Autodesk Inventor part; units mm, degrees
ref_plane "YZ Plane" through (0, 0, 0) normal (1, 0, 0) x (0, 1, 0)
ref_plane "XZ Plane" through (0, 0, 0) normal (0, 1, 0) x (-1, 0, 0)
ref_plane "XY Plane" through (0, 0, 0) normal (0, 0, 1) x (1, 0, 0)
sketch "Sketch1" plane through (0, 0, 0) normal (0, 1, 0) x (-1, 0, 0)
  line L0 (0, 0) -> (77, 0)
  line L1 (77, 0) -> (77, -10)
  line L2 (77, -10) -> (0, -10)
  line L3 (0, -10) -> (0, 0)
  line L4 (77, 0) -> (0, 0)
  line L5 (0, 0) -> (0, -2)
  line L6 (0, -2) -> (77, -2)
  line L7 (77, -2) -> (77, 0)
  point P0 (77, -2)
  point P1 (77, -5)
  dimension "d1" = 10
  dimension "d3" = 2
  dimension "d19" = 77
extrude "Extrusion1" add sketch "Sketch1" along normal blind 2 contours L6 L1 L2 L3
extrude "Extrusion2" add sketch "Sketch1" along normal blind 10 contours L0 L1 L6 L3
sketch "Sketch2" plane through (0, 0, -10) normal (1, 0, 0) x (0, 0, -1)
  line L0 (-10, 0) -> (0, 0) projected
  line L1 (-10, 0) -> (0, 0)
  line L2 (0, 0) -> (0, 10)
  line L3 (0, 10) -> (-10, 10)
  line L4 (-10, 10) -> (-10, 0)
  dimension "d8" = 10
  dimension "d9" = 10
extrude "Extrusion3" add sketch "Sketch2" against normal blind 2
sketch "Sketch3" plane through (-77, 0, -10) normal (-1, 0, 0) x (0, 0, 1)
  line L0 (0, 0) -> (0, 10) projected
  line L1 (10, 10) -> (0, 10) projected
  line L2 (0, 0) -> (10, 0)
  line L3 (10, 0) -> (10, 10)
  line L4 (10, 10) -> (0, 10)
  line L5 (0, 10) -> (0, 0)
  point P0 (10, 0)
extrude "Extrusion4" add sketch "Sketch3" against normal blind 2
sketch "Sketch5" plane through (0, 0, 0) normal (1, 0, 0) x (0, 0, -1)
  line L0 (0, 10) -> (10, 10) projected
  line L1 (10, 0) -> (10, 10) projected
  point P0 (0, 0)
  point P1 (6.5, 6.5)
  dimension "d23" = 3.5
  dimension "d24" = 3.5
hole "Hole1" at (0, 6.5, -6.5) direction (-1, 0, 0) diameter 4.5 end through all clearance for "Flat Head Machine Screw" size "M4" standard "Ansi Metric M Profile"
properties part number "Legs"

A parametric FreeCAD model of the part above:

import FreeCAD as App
import Part
import Sketcher
Q = App.Units.Quantity

doc = App.newDocument("Part")
body = doc.addObject("PartDesign::Body", "Body")

# Sketch on XZ plane
sketch1 = body.newObject("Sketcher::SketchObject", "Sketch")
sketch1.AttachmentSupport = (doc.getObject("XZ_Plane"), [""])
sketch1.MapMode = "FlatFace"
sketch1.addGeometry(Part.LineSegment(App.Vector(-77, -2, 0), App.Vector(0, -2, 0)), False)
sketch1.addGeometry(Part.LineSegment(App.Vector(0, -2, 0), App.Vector(0, -10, 0)), False)
sketch1.addGeometry(Part.LineSegment(App.Vector(0, -10, 0), App.Vector(-77, -10, 0)), False)
sketch1.addGeometry(Part.LineSegment(App.Vector(-77, -10, 0), App.Vector(-77, -2, 0)), False)
sketch1.addConstraint(Sketcher.Constraint("Coincident", 0, 2, 1, 1))
sketch1.addConstraint(Sketcher.Constraint("Coincident", 1, 2, 2, 1))
sketch1.addConstraint(Sketcher.Constraint("Coincident", 2, 2, 3, 1))
sketch1.addConstraint(Sketcher.Constraint("Coincident", 3, 2, 0, 1))
sketch1.addConstraint(Sketcher.Constraint("Horizontal", 0))
sketch1.addConstraint(Sketcher.Constraint("Vertical", 1))
sketch1.addConstraint(Sketcher.Constraint("Horizontal", 2))
sketch1.addConstraint(Sketcher.Constraint("Vertical", 3))
sketch1.addConstraint(Sketcher.Constraint("PointOnObject", 0, 2, -2))
sketch1.addConstraint(Sketcher.Constraint("DistanceX", 0, 1, 0, 2, Q("77 mm")))
sketch1.addConstraint(Sketcher.Constraint("DistanceY", 0, 2, -1, 1, Q("2 mm")))
sketch1.addConstraint(Sketcher.Constraint("DistanceY", 1, 2, -1, 1, Q("10 mm")))
pad1 = body.newObject("PartDesign::Pad", "Pad")
pad1.Profile = sketch1
pad1.Length = 2
pad1.Reversed = True

# Sketch on XZ plane
sketch2 = body.newObject("Sketcher::SketchObject", "Sketch001")
sketch2.AttachmentSupport = (doc.getObject("XZ_Plane"), [""])
sketch2.MapMode = "FlatFace"
sketch2.addGeometry(Part.LineSegment(App.Vector(-77, 0, 0), App.Vector(0, 0, 0)), False)
sketch2.addGeometry(Part.LineSegment(App.Vector(0, 0, 0), App.Vector(0, -2, 0)), False)
sketch2.addGeometry(Part.LineSegment(App.Vector(0, -2, 0), App.Vector(-77, -2, 0)), False)
sketch2.addGeometry(Part.LineSegment(App.Vector(-77, -2, 0), App.Vector(-77, 0, 0)), False)
sketch2.addConstraint(Sketcher.Constraint("Coincident", 0, 2, 1, 1))
sketch2.addConstraint(Sketcher.Constraint("Coincident", 1, 2, 2, 1))
sketch2.addConstraint(Sketcher.Constraint("Coincident", 2, 2, 3, 1))
sketch2.addConstraint(Sketcher.Constraint("Coincident", 3, 2, 0, 1))
sketch2.addConstraint(Sketcher.Constraint("Horizontal", 0))
sketch2.addConstraint(Sketcher.Constraint("Vertical", 1))
sketch2.addConstraint(Sketcher.Constraint("Horizontal", 2))
sketch2.addConstraint(Sketcher.Constraint("Vertical", 3))
sketch2.addConstraint(Sketcher.Constraint("Coincident", 0, 2, -1, 1))
sketch2.addConstraint(Sketcher.Constraint("DistanceX", 0, 1, 0, 2, Q("77 mm")))
sketch2.addConstraint(Sketcher.Constraint("DistanceY", 1, 2, 1, 1, Q("2 mm")))
pad2 = body.newObject("PartDesign::Pad", "Pad001")
pad2.Profile = sketch2
pad2.Length = 10
pad2.Reversed = True

# Sketch on YZ plane
sketch3 = body.newObject("Sketcher::SketchObject", "Sketch002")
sketch3.AttachmentSupport = (doc.getObject("YZ_Plane"), [""])
sketch3.MapMode = "FlatFace"
sketch3.addGeometry(Part.LineSegment(App.Vector(10, 0, 0), App.Vector(0, 0, 0)), False)
sketch3.addGeometry(Part.LineSegment(App.Vector(0, 0, 0), App.Vector(0, -10, 0)), False)
sketch3.addGeometry(Part.LineSegment(App.Vector(0, -10, 0), App.Vector(10, -10, 0)), False)
sketch3.addGeometry(Part.LineSegment(App.Vector(10, -10, 0), App.Vector(10, 0, 0)), False)
sketch3.addConstraint(Sketcher.Constraint("Coincident", 0, 2, 1, 1))
sketch3.addConstraint(Sketcher.Constraint("Coincident", 1, 2, 2, 1))
sketch3.addConstraint(Sketcher.Constraint("Coincident", 2, 2, 3, 1))
sketch3.addConstraint(Sketcher.Constraint("Coincident", 3, 2, 0, 1))
sketch3.addConstraint(Sketcher.Constraint("Horizontal", 0))
sketch3.addConstraint(Sketcher.Constraint("Vertical", 1))
sketch3.addConstraint(Sketcher.Constraint("Horizontal", 2))
sketch3.addConstraint(Sketcher.Constraint("Vertical", 3))
sketch3.addConstraint(Sketcher.Constraint("Coincident", 0, 2, -1, 1))
sketch3.addConstraint(Sketcher.Constraint("Equal", 2, 1))
sketch3.addConstraint(Sketcher.Constraint("DistanceX", 0, 2, 0, 1, Q("10 mm")))
pad3 = body.newObject("PartDesign::Pad", "Pad002")
pad3.Profile = sketch3
pad3.Length = 2
pad3.Reversed = True

# Sketch on YZ plane
sketch4 = body.newObject("Sketcher::SketchObject", "Sketch003")
sketch4.AttachmentSupport = (doc.getObject("YZ_Plane"), [""])
sketch4.MapMode = "FlatFace"
sketch4.AttachmentOffset = App.Placement(App.Vector(0, 0, -77), App.Rotation())
sketch4.addGeometry(Part.LineSegment(App.Vector(10, -10, 0), App.Vector(0, -10, 0)), False)
sketch4.addGeometry(Part.LineSegment(App.Vector(0, -10, 0), App.Vector(0, 0, 0)), False)
sketch4.addGeometry(Part.LineSegment(App.Vector(0, 0, 0), App.Vector(10, 0, 0)), False)
sketch4.addGeometry(Part.LineSegment(App.Vector(10, 0, 0), App.Vector(10, -10, 0)), False)
sketch4.addConstraint(Sketcher.Constraint("Coincident", 0, 2, 1, 1))
sketch4.addConstraint(Sketcher.Constraint("Coincident", 1, 2, 2, 1))
sketch4.addConstraint(Sketcher.Constraint("Coincident", 2, 2, 3, 1))
sketch4.addConstraint(Sketcher.Constraint("Coincident", 3, 2, 0, 1))
sketch4.addConstraint(Sketcher.Constraint("Horizontal", 0))
sketch4.addConstraint(Sketcher.Constraint("Vertical", 1))
sketch4.addConstraint(Sketcher.Constraint("Horizontal", 2))
sketch4.addConstraint(Sketcher.Constraint("Vertical", 3))
sketch4.addConstraint(Sketcher.Constraint("Coincident", 1, 2, -1, 1))
sketch4.addConstraint(Sketcher.Constraint("Equal", 2, 1))
sketch4.addConstraint(Sketcher.Constraint("DistanceX", 0, 2, 0, 1, Q("10 mm")))
pad4 = body.newObject("PartDesign::Pad", "Pad003")
pad4.Profile = sketch4
pad4.Length = 2

# Sketch on YZ plane
sketch5 = body.newObject("Sketcher::SketchObject", "Sketch004")
sketch5.AttachmentSupport = (doc.getObject("YZ_Plane"), [""])
sketch5.MapMode = "FlatFace"
sketch5.addGeometry(Part.Circle(App.Vector(6.5, -6.5, 0), App.Vector(0, 0, 1), 2.2), False)
sketch5.addConstraint(Sketcher.Constraint("Diameter", 0, Q("4.5 mm")))
sketch5.addConstraint(Sketcher.Constraint("DistanceX", -1, 1, 0, 3, Q("6.5 mm")))
sketch5.addConstraint(Sketcher.Constraint("DistanceY", 0, 3, -1, 1, Q("6.5 mm")))
doc.recompute()
hole = body.newObject("PartDesign::Hole", "Hole")
hole.Profile = sketch5
hole.ThreadType = "None"
hole.Diameter = 4.5
hole.DepthType = "ThroughAll"

doc.recompute()
